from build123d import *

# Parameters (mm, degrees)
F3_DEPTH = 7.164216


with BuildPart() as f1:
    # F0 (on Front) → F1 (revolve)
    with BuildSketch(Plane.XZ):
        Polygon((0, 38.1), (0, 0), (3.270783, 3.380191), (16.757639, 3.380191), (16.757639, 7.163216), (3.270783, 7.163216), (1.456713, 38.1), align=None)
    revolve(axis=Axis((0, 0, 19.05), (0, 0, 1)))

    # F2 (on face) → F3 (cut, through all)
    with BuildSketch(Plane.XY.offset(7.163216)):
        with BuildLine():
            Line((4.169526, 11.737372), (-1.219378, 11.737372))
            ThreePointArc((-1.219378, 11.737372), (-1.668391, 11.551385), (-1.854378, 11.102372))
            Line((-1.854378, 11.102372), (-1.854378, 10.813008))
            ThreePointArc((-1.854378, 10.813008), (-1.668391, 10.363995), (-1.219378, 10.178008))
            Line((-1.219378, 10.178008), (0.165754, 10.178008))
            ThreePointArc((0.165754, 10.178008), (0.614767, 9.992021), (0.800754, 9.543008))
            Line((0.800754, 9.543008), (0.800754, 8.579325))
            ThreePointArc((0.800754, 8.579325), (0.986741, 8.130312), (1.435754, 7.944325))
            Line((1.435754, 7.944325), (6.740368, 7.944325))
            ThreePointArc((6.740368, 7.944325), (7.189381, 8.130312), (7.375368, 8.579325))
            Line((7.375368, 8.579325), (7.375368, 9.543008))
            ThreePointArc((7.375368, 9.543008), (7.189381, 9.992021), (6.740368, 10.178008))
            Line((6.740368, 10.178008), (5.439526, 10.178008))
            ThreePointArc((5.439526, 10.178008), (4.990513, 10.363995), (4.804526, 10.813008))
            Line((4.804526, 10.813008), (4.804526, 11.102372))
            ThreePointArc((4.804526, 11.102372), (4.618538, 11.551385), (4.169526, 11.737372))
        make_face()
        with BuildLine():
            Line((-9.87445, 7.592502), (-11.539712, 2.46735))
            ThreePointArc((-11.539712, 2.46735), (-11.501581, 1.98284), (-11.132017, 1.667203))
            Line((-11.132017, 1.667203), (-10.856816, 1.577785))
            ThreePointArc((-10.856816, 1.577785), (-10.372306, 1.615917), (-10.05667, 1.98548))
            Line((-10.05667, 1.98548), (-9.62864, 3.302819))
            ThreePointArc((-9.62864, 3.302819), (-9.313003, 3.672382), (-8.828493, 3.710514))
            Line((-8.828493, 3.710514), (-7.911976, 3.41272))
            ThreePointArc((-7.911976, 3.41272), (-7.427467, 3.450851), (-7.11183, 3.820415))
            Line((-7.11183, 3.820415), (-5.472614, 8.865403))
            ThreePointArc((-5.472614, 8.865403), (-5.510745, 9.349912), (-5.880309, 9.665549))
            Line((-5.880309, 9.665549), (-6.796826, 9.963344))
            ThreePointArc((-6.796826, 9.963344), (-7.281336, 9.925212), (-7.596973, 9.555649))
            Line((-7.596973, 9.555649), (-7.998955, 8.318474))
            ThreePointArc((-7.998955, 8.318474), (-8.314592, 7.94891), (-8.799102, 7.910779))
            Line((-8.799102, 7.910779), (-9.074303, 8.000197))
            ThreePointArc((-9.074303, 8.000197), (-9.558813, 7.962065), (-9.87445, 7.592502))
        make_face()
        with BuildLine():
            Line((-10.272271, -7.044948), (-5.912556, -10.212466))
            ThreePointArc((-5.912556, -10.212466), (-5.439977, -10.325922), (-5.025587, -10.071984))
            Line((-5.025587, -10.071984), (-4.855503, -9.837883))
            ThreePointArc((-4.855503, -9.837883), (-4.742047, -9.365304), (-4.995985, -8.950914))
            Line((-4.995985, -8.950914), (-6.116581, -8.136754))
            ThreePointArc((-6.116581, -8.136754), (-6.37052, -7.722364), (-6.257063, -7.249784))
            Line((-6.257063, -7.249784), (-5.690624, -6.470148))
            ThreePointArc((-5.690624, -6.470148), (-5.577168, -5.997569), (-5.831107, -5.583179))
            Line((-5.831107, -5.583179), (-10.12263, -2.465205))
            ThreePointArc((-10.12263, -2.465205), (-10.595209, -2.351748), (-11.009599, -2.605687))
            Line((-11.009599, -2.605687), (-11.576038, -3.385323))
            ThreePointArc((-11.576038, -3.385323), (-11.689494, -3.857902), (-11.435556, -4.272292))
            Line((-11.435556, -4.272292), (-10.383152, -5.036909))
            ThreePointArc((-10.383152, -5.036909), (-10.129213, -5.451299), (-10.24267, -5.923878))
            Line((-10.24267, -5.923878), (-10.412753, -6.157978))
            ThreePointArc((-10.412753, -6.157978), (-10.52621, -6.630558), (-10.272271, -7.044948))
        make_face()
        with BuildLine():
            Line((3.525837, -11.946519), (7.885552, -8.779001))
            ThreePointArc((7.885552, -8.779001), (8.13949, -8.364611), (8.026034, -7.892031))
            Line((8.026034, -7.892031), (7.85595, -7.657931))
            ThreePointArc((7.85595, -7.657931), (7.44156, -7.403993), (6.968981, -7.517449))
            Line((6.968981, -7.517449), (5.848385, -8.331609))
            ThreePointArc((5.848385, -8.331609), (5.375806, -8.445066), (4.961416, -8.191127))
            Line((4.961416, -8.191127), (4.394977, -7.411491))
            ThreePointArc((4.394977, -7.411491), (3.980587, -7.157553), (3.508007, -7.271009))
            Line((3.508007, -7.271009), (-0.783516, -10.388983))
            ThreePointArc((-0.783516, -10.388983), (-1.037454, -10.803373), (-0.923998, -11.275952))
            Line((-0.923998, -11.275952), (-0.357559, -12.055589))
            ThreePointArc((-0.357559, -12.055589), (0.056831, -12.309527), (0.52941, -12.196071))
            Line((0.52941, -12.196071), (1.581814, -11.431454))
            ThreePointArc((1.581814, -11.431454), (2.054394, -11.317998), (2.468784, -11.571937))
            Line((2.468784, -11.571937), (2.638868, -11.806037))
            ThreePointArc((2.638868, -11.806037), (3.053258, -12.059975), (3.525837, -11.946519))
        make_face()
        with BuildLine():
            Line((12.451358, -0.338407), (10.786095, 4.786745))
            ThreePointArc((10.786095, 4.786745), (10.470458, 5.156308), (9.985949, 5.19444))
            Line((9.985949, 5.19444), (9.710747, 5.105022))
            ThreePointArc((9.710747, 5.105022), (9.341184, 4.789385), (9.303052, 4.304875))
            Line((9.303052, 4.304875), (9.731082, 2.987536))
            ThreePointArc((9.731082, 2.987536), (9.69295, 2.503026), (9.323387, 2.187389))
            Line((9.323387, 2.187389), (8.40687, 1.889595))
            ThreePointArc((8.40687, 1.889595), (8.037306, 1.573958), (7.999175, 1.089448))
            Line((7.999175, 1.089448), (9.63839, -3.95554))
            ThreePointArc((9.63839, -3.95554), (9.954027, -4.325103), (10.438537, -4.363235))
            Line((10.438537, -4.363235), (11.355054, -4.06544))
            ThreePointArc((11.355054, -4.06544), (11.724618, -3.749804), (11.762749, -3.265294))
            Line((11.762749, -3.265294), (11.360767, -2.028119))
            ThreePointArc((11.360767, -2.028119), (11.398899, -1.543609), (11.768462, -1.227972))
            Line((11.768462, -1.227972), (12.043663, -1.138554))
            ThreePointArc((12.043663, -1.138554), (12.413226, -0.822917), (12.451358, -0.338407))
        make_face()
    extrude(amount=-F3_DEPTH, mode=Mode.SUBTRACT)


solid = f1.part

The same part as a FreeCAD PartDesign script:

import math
import FreeCAD as App
import Part
import Sketcher
Q = App.Units.Quantity


def add_polygon(sketch, points):
    """Adds a closed chain of lines whose ends are joined by coincident constraints."""
    first, n = sketch.GeometryCount, len(points)
    for a, b in zip(points, points[1:] + points[:1]):
        sketch.addGeometry(Part.LineSegment(App.Vector(*a, 0), App.Vector(*b, 0)), False)
    for i in range(n):
        sketch.addConstraint(Sketcher.Constraint("Coincident", first + i, 2, first + (i + 1) % n, 1))

doc = App.newDocument("Part")
body = doc.addObject("PartDesign::Body", "Body")

sketch1 = body.newObject("Sketcher::SketchObject", "Sketch")
sketch1.AttachmentSupport = (doc.getObject("XZ_Plane"), [""])
sketch1.MapMode = "FlatFace"
add_polygon(sketch1, [(0, 38.1), (0, 0), (3.270783, 3.380191), (16.757639, 3.380191), (16.757639, 7.163216), (3.270783, 7.163216), (1.456713, 38.1)])
sketch1.addConstraint(Sketcher.Constraint("Vertical", 0))
sketch1.addConstraint(Sketcher.Constraint("Horizontal", 2))
sketch1.addConstraint(Sketcher.Constraint("Vertical", 3))
sketch1.addConstraint(Sketcher.Constraint("Horizontal", 4))
sketch1.addConstraint(Sketcher.Constraint("Horizontal", 6))
sketch1.addConstraint(Sketcher.Constraint("Coincident", 0, 2, -1, 1))
sketch1.addConstraint(Sketcher.Constraint("Vertical", 1, 2, 4, 2))
sketch1.addConstraint(Sketcher.Constraint("DistanceY", 0, 2, 0, 1, Q("1.5 in")))
sketch1.addConstraint(Sketcher.Constraint("DistanceX", 2, 1, 2, 2, Q("13.486856 mm")))
sketch1.addConstraint(Sketcher.Constraint("DistanceX", 6, 2, 6, 1, Q("1.456713 mm")))
sketch1.addConstraint(Sketcher.Constraint("DistanceY", 3, 1, 3, 2, Q("3.783025 mm")))
sketch1.addConstraint(Sketcher.Constraint("DistanceY", -1, 1, 1, 2, Q("3.380191 mm")))
sketch1.addConstraint(Sketcher.Constraint("DistanceX", -1, 1, 2, 2, Q("16.757639 mm")))
revolution = body.newObject("PartDesign::Revolution", "Revolution")
revolution.Profile = sketch1
revolution.ReferenceAxis = (sketch1, ["V_Axis"])
revolution.Angle = 360

sketch2 = body.newObject("Sketcher::SketchObject", "Sketch001")
sketch2.AttachmentSupport = (doc.getObject("XY_Plane"), [""])
sketch2.MapMode = "FlatFace"
sketch2.AttachmentOffset = App.Placement(App.Vector(0, 0, 7.163216), App.Rotation())
sketch2.addGeometry(Part.LineSegment(App.Vector(4.169526, 11.737372, 0), App.Vector(-1.219378, 11.737372, 0)), False)
sketch2.addGeometry(Part.ArcOfCircle(Part.Circle(App.Vector(-1.219379, 11.102373, 0), App.Vector(0, 0, 1), 0.634999), math.radians(89.99994), math.radians(180.00006)), False)
sketch2.addGeometry(Part.LineSegment(App.Vector(-1.854378, 11.102372, 0), App.Vector(-1.854378, 10.813008, 0)), False)
sketch2.addGeometry(Part.ArcOfCircle(Part.Circle(App.Vector(-1.219379, 10.813007, 0), App.Vector(0, 0, 1), 0.634999), math.radians(179.99994), math.radians(270.00006)), False)
sketch2.addGeometry(Part.LineSegment(App.Vector(-1.219378, 10.178008, 0), App.Vector(0.165754, 10.178008, 0)), False)
sketch2.addGeometry(Part.ArcOfCircle(Part.Circle(App.Vector(0.165755, 9.543009, 0), App.Vector(0, 0, 1), 0.634999), math.radians(-0.00006), math.radians(90.00006)), False)
sketch2.addGeometry(Part.LineSegment(App.Vector(0.800754, 9.543008, 0), App.Vector(0.800754, 8.579325, 0)), False)
sketch2.addGeometry(Part.ArcOfCircle(Part.Circle(App.Vector(1.435753, 8.579324, 0), App.Vector(0, 0, 1), 0.634999), math.radians(179.99994), math.radians(270.00006)), False)
sketch2.addGeometry(Part.LineSegment(App.Vector(1.435754, 7.944325, 0), App.Vector(6.740368, 7.944325, 0)), False)
sketch2.addGeometry(Part.ArcOfCircle(Part.Circle(App.Vector(6.740369, 8.579324, 0), App.Vector(0, 0, 1), 0.634999), math.radians(-90.00006), math.radians(0.00006)), False)
sketch2.addGeometry(Part.LineSegment(App.Vector(7.375368, 8.579325, 0), App.Vector(7.375368, 9.543008, 0)), False)
sketch2.addGeometry(Part.ArcOfCircle(Part.Circle(App.Vector(6.740369, 9.543009, 0), App.Vector(0, 0, 1), 0.634999), math.radians(-0.00006), math.radians(90.00006)), False)
sketch2.addGeometry(Part.LineSegment(App.Vector(6.740368, 10.178008, 0), App.Vector(5.439526, 10.178008, 0)), False)
sketch2.addGeometry(Part.ArcOfCircle(Part.Circle(App.Vector(5.439525, 10.813007, 0), App.Vector(0, 0, 1), 0.634999), math.radians(179.99994), math.radians(270.00006)), False)
sketch2.addGeometry(Part.LineSegment(App.Vector(4.804526, 10.813008, 0), App.Vector(4.804526, 11.102372, 0)), False)
sketch2.addGeometry(Part.ArcOfCircle(Part.Circle(App.Vector(4.169525, 11.102371, 0), App.Vector(0, 0, 1), 0.635001), math.radians(0.000094), math.radians(89.999906)), False)
sketch2.addGeometry(Part.LineSegment(App.Vector(-9.87445, 7.592502, 0), App.Vector(-11.539712, 2.46735, 0)), False)
sketch2.addGeometry(Part.ArcOfCircle(Part.Circle(App.Vector(-10.935793, 2.271123, 0), App.Vector(0, 0, 1), 0.634999), math.radians(161.999853), math.radians(252.000118)), False)
sketch2.addGeometry(Part.LineSegment(App.Vector(-11.132017, 1.667203, 0), App.Vector(-10.856816, 1.577785, 0)), False)
sketch2.addGeometry(Part.ArcOfCircle(Part.Circle(App.Vector(-10.66059, 2.181705, 0), App.Vector(0, 0, 1), 0.634999), math.radians(-108.000014), math.radians(-17.999958)), False)
sketch2.addGeometry(Part.LineSegment(App.Vector(-10.05667, 1.98548, 0), App.Vector(-9.62864, 3.302819, 0)), False)
sketch2.addGeometry(Part.ArcOfCircle(Part.Circle(App.Vector(-9.024719, 3.106592, 0), App.Vector(0, 0, 1), 0.635001), math.radians(72.000047), math.radians(161.999923)), False)
sketch2.addGeometry(Part.LineSegment(App.Vector(-8.828493, 3.710514, 0), App.Vector(-7.911976, 3.41272, 0)), False)
sketch2.addGeometry(Part.ArcOfCircle(Part.Circle(App.Vector(-7.71575, 4.016639, 0), App.Vector(0, 0, 1), 0.634998), math.radians(-108.000109), math.radians(-17.999863)), False)
sketch2.addGeometry(Part.LineSegment(App.Vector(-7.11183, 3.820415, 0), App.Vector(-5.472614, 8.865403, 0)), False)
sketch2.addGeometry(Part.ArcOfCircle(Part.Circle(App.Vector(-6.076533, 9.061629, 0), App.Vector(0, 0, 1), 0.634998), math.radians(-18.000109), math.radians(72.000137)), False)
sketch2.addGeometry(Part.LineSegment(App.Vector(-5.880309, 9.665549, 0), App.Vector(-6.796826, 9.963344, 0)), False)
sketch2.addGeometry(Part.ArcOfCircle(Part.Circle(App.Vector(-6.993052, 9.359422, 0), App.Vector(0, 0, 1), 0.635001), math.radians(72.000047), math.radians(161.999923)), False)
sketch2.addGeometry(Part.LineSegment(App.Vector(-7.596973, 9.555649, 0), App.Vector(-7.998955, 8.318474, 0)), False)
sketch2.addGeometry(Part.ArcOfCircle(Part.Circle(App.Vector(-8.602875, 8.514698, 0), App.Vector(0, 0, 1), 0.634999), math.radians(-108.000147), math.radians(-17.999882)), False)
sketch2.addGeometry(Part.LineSegment(App.Vector(-8.799102, 7.910779, 0), App.Vector(-9.074303, 8.000197, 0)), False)
sketch2.addGeometry(Part.ArcOfCircle(Part.Circle(App.Vector(-9.270529, 7.396275, 0), App.Vector(0, 0, 1), 0.635001), math.radians(72.000047), math.radians(161.999923)), False)
sketch2.addGeometry(Part.LineSegment(App.Vector(-10.272271, -7.044948, 0), App.Vector(-5.912556, -10.212466, 0)), False)
sketch2.addGeometry(Part.ArcOfCircle(Part.Circle(App.Vector(-5.539313, -9.698739, 0), App.Vector(0, 0, 1), 0.635), math.radians(-125.999933), math.radians(-36.000078)), False)
sketch2.addGeometry(Part.LineSegment(App.Vector(-5.025587, -10.071984, 0), App.Vector(-4.855503, -9.837883, 0)), False)
sketch2.addGeometry(Part.ArcOfCircle(Part.Circle(App.Vector(-5.36923, -9.46464, 0), App.Vector(0, 0, 1), 0.635), math.radians(-35.999933), math.radians(53.999922)), False)
sketch2.addGeometry(Part.LineSegment(App.Vector(-4.995985, -8.950914, 0), App.Vector(-6.116581, -8.136754, 0)), False)
sketch2.addGeometry(Part.ArcOfCircle(Part.Circle(App.Vector(-5.743339, -7.623028, 0), App.Vector(0, 0, 1), 0.634999), math.radians(143.99987), math.radians(234.000099)), False)
sketch2.addGeometry(Part.LineSegment(App.Vector(-6.257063, -7.249784, 0), App.Vector(-5.690624, -6.470148, 0)), False)
sketch2.addGeometry(Part.ArcOfCircle(Part.Circle(App.Vector(-6.20435, -6.096905, 0), App.Vector(0, 0, 1), 0.634999), math.radians(-35.99997), math.radians(54.000085)), False)
sketch2.addGeometry(Part.LineSegment(App.Vector(-5.831107, -5.583179, 0), App.Vector(-10.12263, -2.465205, 0)), False)
sketch2.addGeometry(Part.ArcOfCircle(Part.Circle(App.Vector(-10.495874, -2.978928, 0), App.Vector(0, 0, 1), 0.634998), math.radians(53.999852), math.radians(144.000137)), False)
sketch2.addGeometry(Part.LineSegment(App.Vector(-11.009599, -2.605687, 0), App.Vector(-11.576038, -3.385323, 0)), False)
sketch2.addGeometry(Part.ArcOfCircle(Part.Circle(App.Vector(-11.062311, -3.758566, 0), App.Vector(0, 0, 1), 0.635), math.radians(144.000067), math.radians(233.999922)), False)
sketch2.addGeometry(Part.LineSegment(App.Vector(-11.435556, -4.272292, 0), App.Vector(-10.383152, -5.036909, 0)), False)
sketch2.addGeometry(Part.ArcOfCircle(Part.Circle(App.Vector(-10.756393, -5.550634, 0), App.Vector(0, 0, 1), 0.634998), math.radians(-36.000148), math.radians(54.000137)), False)
sketch2.addGeometry(Part.LineSegment(App.Vector(-10.24267, -5.923878, 0), App.Vector(-10.412753, -6.157978, 0)), False)
sketch2.addGeometry(Part.ArcOfCircle(Part.Circle(App.Vector(-9.899029, -6.531222, 0), App.Vector(0, 0, 1), 0.634999), math.radians(143.99987), math.radians(234.000099)), False)
sketch2.addGeometry(Part.LineSegment(App.Vector(3.525837, -11.946519, 0), App.Vector(7.885552, -8.779001, 0)), False)
sketch2.addGeometry(Part.ArcOfCircle(Part.Circle(App.Vector(7.512306, -8.265275, 0), App.Vector(0, 0, 1), 0.635001), math.radians(-53.999884), math.radians(35.999915)), False)
sketch2.addGeometry(Part.LineSegment(App.Vector(8.026034, -7.892031, 0), App.Vector(7.85595, -7.657931, 0)), False)
sketch2.addGeometry(Part.ArcOfCircle(Part.Circle(App.Vector(7.342224, -8.031176, 0), App.Vector(0, 0, 1), 0.635), math.radians(36.000078), math.radians(125.999933)), False)
sketch2.addGeometry(Part.LineSegment(App.Vector(6.968981, -7.517449, 0), App.Vector(5.848385, -8.331609, 0)), False)
sketch2.addGeometry(Part.ArcOfCircle(Part.Circle(App.Vector(5.475141, -7.817886, 0), App.Vector(0, 0, 1), 0.634998), math.radians(-144.000137), math.radians(-53.999852)), False)
sketch2.addGeometry(Part.LineSegment(App.Vector(4.961416, -8.191127, 0), App.Vector(4.394977, -7.411491, 0)), False)
sketch2.addGeometry(Part.ArcOfCircle(Part.Circle(App.Vector(3.881251, -7.784737, 0), App.Vector(0, 0, 1), 0.635001), math.radians(36.000116), math.radians(125.999915)), False)
sketch2.addGeometry(Part.LineSegment(App.Vector(3.508007, -7.271009, 0), App.Vector(-0.783516, -10.388983, 0)), False)
sketch2.addGeometry(Part.ArcOfCircle(Part.Circle(App.Vector(-0.410271, -10.902709, 0), App.Vector(0, 0, 1), 0.635), math.radians(126.000078), math.radians(215.999933)), False)
sketch2.addGeometry(Part.LineSegment(App.Vector(-0.923998, -11.275952, 0), App.Vector(-0.357559, -12.055589, 0)), False)
sketch2.addGeometry(Part.ArcOfCircle(Part.Circle(App.Vector(0.156167, -11.682344, 0), App.Vector(0, 0, 1), 0.635), math.radians(-143.999922), math.radians(-54.000067)), False)
sketch2.addGeometry(Part.LineSegment(App.Vector(0.52941, -12.196071, 0), App.Vector(1.581814, -11.431454, 0)), False)
sketch2.addGeometry(Part.ArcOfCircle(Part.Circle(App.Vector(1.955058, -11.94518, 0), App.Vector(0, 0, 1), 0.635), math.radians(35.999952), math.radians(125.999953)), False)
sketch2.addGeometry(Part.LineSegment(App.Vector(2.468784, -11.571937, 0), App.Vector(2.638868, -11.806037, 0)), False)
sketch2.addGeometry(Part.ArcOfCircle(Part.Circle(App.Vector(3.152594, -11.432792, 0), App.Vector(0, 0, 1), 0.635), math.radians(-143.999922), math.radians(-54.000067)), False)
sketch2.addGeometry(Part.LineSegment(App.Vector(12.451358, -0.338407, 0), App.Vector(10.786095, 4.786745, 0)), False)
sketch2.addGeometry(Part.ArcOfCircle(Part.Circle(App.Vector(10.182174, 4.590519, 0), App.Vector(0, 0, 1), 0.635), math.radians(18.000057), math.radians(107.999915)), False)
sketch2.addGeometry(Part.LineSegment(App.Vector(9.985949, 5.19444, 0), App.Vector(9.710747, 5.105022, 0)), False)
sketch2.addGeometry(Part.ArcOfCircle(Part.Circle(App.Vector(9.906974, 4.501101, 0), App.Vector(0, 0, 1), 0.635001), math.radians(108.000077), math.radians(197.999953)), False)
sketch2.addGeometry(Part.LineSegment(App.Vector(9.303052, 4.304875, 0), App.Vector(9.731082, 2.987536, 0)), False)
sketch2.addGeometry(Part.ArcOfCircle(Part.Circle(App.Vector(9.12716, 2.79131, 0), App.Vector(0, 0, 1), 0.635001), math.radians(-71.999923), math.radians(17.999953)), False)
sketch2.addGeometry(Part.LineSegment(App.Vector(9.323387, 2.187389, 0), App.Vector(8.40687, 1.889595, 0)), False)
sketch2.addGeometry(Part.ArcOfCircle(Part.Circle(App.Vector(8.603094, 1.285675, 0), App.Vector(0, 0, 1), 0.634999), math.radians(107.999882), math.radians(198.000147)), False)
sketch2.addGeometry(Part.LineSegment(App.Vector(7.999175, 1.089448, 0), App.Vector(9.63839, -3.95554, 0)), False)
sketch2.addGeometry(Part.ArcOfCircle(Part.Circle(App.Vector(10.242311, -3.759313, 0), App.Vector(0, 0, 1), 0.635001), math.radians(-161.999923), math.radians(-72.000047)), False)
sketch2.addGeometry(Part.LineSegment(App.Vector(10.438537, -4.363235, 0), App.Vector(11.355054, -4.06544, 0)), False)
sketch2.addGeometry(Part.ArcOfCircle(Part.Circle(App.Vector(11.158832, -3.461521, 0), App.Vector(0, 0, 1), 0.634997), math.radians(-72.000236), math.radians(18.000208)), False)
sketch2.addGeometry(Part.LineSegment(App.Vector(11.762749, -3.265294, 0), App.Vector(11.360767, -2.028119, 0)), False)
sketch2.addGeometry(Part.ArcOfCircle(Part.Circle(App.Vector(11.964689, -1.831893, 0), App.Vector(0, 0, 1), 0.635001), math.radians(108.000077), math.radians(197.999953)), False)
sketch2.addGeometry(Part.LineSegment(App.Vector(11.768462, -1.227972, 0), App.Vector(12.043663, -1.138554, 0)), False)
sketch2.addGeometry(Part.ArcOfCircle(Part.Circle(App.Vector(11.847436, -0.534633, 0), App.Vector(0, 0, 1), 0.635001), math.radians(-71.999923), math.radians(17.999953)), False)
sketch2.addConstraint(Sketcher.Constraint("Tangent", 0, 2, 1, 1))
sketch2.addConstraint(Sketcher.Constraint("Tangent", 1, 2, 2, 1))
sketch2.addConstraint(Sketcher.Constraint("Tangent", 2, 2, 3, 1))
sketch2.addConstraint(Sketcher.Constraint("Tangent", 3, 2, 4, 1))
sketch2.addConstraint(Sketcher.Constraint("Tangent", 4, 2, 5, 2))
sketch2.addConstraint(Sketcher.Constraint("Tangent", 5, 1, 6, 1))
sketch2.addConstraint(Sketcher.Constraint("Tangent", 6, 2, 7, 1))
sketch2.addConstraint(Sketcher.Constraint("Tangent", 7, 2, 8, 1))
sketch2.addConstraint(Sketcher.Constraint("Tangent", 8, 2, 9, 1))
sketch2.addConstraint(Sketcher.Constraint("Tangent", 9, 2, 10, 1))
sketch2.addConstraint(Sketcher.Constraint("Tangent", 10, 2, 11, 1))
sketch2.addConstraint(Sketcher.Constraint("Tangent", 11, 2, 12, 1))
sketch2.addConstraint(Sketcher.Constraint("Tangent", 12, 2, 13, 2))
sketch2.addConstraint(Sketcher.Constraint("Tangent", 13, 1, 14, 1))
sketch2.addConstraint(Sketcher.Constraint("Tangent", 14, 2, 15, 1))
sketch2.addConstraint(Sketcher.Constraint("Tangent", 15, 2, 0, 1))
sketch2.addConstraint(Sketcher.Constraint("Coincident", 16, 2, 17, 1))
sketch2.addConstraint(Sketcher.Constraint("Tangent", 17, 2, 18, 1))
sketch2.addConstraint(Sketcher.Constraint("Tangent", 18, 2, 19, 1))
sketch2.addConstraint(Sketcher.Constraint("Tangent", 19, 2, 20, 1))
sketch2.addConstraint(Sketcher.Constraint("Tangent", 20, 2, 21, 2))
sketch2.addConstraint(Sketcher.Constraint("Tangent", 21, 1, 22, 1))
sketch2.addConstraint(Sketcher.Constraint("Coincident", 22, 2, 23, 1))
sketch2.addConstraint(Sketcher.Constraint("Coincident", 23, 2, 24, 1))
sketch2.addConstraint(Sketcher.Constraint("Tangent", 24, 2, 25, 1))
sketch2.addConstraint(Sketcher.Constraint("Coincident", 25, 2, 26, 1))
sketch2.addConstraint(Sketcher.Constraint("Tangent", 26, 2, 27, 1))
sketch2.addConstraint(Sketcher.Constraint("Tangent", 27, 2, 28, 1))
sketch2.addConstraint(Sketcher.Constraint("Tangent", 28, 2, 29, 2))
sketch2.addConstraint(Sketcher.Constraint("Coincident", 29, 1, 30, 1))
sketch2.addConstraint(Sketcher.Constraint("Tangent", 30, 2, 31, 1))
sketch2.addConstraint(Sketcher.Constraint("Tangent", 31, 2, 16, 1))
sketch2.addConstraint(Sketcher.Constraint("Tangent", 32, 2, 33, 1))
sketch2.addConstraint(Sketcher.Constraint("Coincident", 33, 2, 34, 1))
sketch2.addConstraint(Sketcher.Constraint("Tangent", 34, 2, 35, 1))
sketch2.addConstraint(Sketcher.Constraint("Tangent", 35, 2, 36, 1))
sketch2.addConstraint(Sketcher.Constraint("Tangent", 36, 2, 37, 2))
sketch2.addConstraint(Sketcher.Constraint("Coincident", 37, 1, 38, 1))
sketch2.addConstraint(Sketcher.Constraint("Tangent", 38, 2, 39, 1))
sketch2.addConstraint(Sketcher.Constraint("Tangent", 39, 2, 40, 1))
sketch2.addConstraint(Sketcher.Constraint("Coincident", 40, 2, 41, 1))
sketch2.addConstraint(Sketcher.Constraint("Coincident", 41, 2, 42, 1))
sketch2.addConstraint(Sketcher.Constraint("Tangent", 42, 2, 43, 1))
sketch2.addConstraint(Sketcher.Constraint("Tangent", 43, 2, 44, 1))
sketch2.addConstraint(Sketcher.Constraint("Coincident", 44, 2, 45, 2))
sketch2.addConstraint(Sketcher.Constraint("Coincident", 45, 1, 46, 1))
sketch2.addConstraint(Sketcher.Constraint("Coincident", 46, 2, 47, 1))
sketch2.addConstraint(Sketcher.Constraint("Tangent", 47, 2, 32, 1))
sketch2.addConstraint(Sketcher.Constraint("Coincident", 48, 2, 49, 1))
sketch2.addConstraint(Sketcher.Constraint("Coincident", 49, 2, 50, 1))
sketch2.addConstraint(Sketcher.Constraint("Tangent", 50, 2, 51, 1))
sketch2.addConstraint(Sketcher.Constraint("Tangent", 51, 2, 52, 1))
sketch2.addConstraint(Sketcher.Constraint("Coincident", 52, 2, 53, 2))
sketch2.addConstraint(Sketcher.Constraint("Coincident", 53, 1, 54, 1))
sketch2.addConstraint(Sketcher.Constraint("Tangent", 54, 2, 55, 1))
sketch2.addConstraint(Sketcher.Constraint("Tangent", 55, 2, 56, 1))
sketch2.addConstraint(Sketcher.Constraint("Tangent", 56, 2, 57, 1))
sketch2.addConstraint(Sketcher.Constraint("Tangent", 57, 2, 58, 1))
sketch2.addConstraint(Sketcher.Constraint("Tangent", 58, 2, 59, 1))
sketch2.addConstraint(Sketcher.Constraint("Tangent", 59, 2, 60, 1))
sketch2.addConstraint(Sketcher.Constraint("Tangent", 60, 2, 61, 2))
sketch2.addConstraint(Sketcher.Constraint("Tangent", 61, 1, 62, 1))
sketch2.addConstraint(Sketcher.Constraint("Tangent", 62, 2, 63, 1))
sketch2.addConstraint(Sketcher.Constraint("Tangent", 63, 2, 48, 1))
sketch2.addConstraint(Sketcher.Constraint("Tangent", 64, 2, 65, 1))
sketch2.addConstraint(Sketcher.Constraint("Tangent", 65, 2, 66, 1))
sketch2.addConstraint(Sketcher.Constraint("Coincident", 66, 2, 67, 1))
sketch2.addConstraint(Sketcher.Constraint("Tangent", 67, 2, 68, 1))
sketch2.addConstraint(Sketcher.Constraint("Tangent", 68, 2, 69, 2))
sketch2.addConstraint(Sketcher.Constraint("Tangent", 69, 1, 70, 1))
sketch2.addConstraint(Sketcher.Constraint("Tangent", 70, 2, 71, 1))
sketch2.addConstraint(Sketcher.Constraint("Coincident", 71, 2, 72, 1))
sketch2.addConstraint(Sketcher.Constraint("Tangent", 72, 2, 73, 1))
sketch2.addConstraint(Sketcher.Constraint("Tangent", 73, 2, 74, 1))
sketch2.addConstraint(Sketcher.Constraint("Coincident", 74, 2, 75, 1))
sketch2.addConstraint(Sketcher.Constraint("Coincident", 75, 2, 76, 1))
sketch2.addConstraint(Sketcher.Constraint("Tangent", 76, 2, 77, 2))
sketch2.addConstraint(Sketcher.Constraint("Coincident", 77, 1, 78, 1))
sketch2.addConstraint(Sketcher.Constraint("Coincident", 78, 2, 79, 1))
sketch2.addConstraint(Sketcher.Constraint("Tangent", 79, 2, 64, 1))
sketch2.addConstraint(Sketcher.Constraint("Horizontal", 0))
sketch2.addConstraint(Sketcher.Constraint("Vertical", 2))
sketch2.addConstraint(Sketcher.Constraint("Horizontal", 4))
sketch2.addConstraint(Sketcher.Constraint("Vertical", 6))
sketch2.addConstraint(Sketcher.Constraint("Horizontal", 8))
sketch2.addConstraint(Sketcher.Constraint("Vertical", 10))
sketch2.addConstraint(Sketcher.Constraint("Horizontal", 12))
sketch2.addConstraint(Sketcher.Constraint("Vertical", 14))
sketch2.addConstraint(Sketcher.Constraint("Equal", 1, 3))
sketch2.addConstraint(Sketcher.Constraint("Equal", 3, 5))
sketch2.addConstraint(Sketcher.Constraint("Equal", 5, 7))
sketch2.addConstraint(Sketcher.Constraint("Equal", 7, 9))
sketch2.addConstraint(Sketcher.Constraint("Equal", 9, 11))
sketch2.addConstraint(Sketcher.Constraint("Equal", 11, 13))
sketch2.addConstraint(Sketcher.Constraint("Equal", 13, 15))
sketch2.addConstraint(Sketcher.Constraint("Equal", 13, 17))
sketch2.addConstraint(Sketcher.Constraint("Equal", 17, 19))
sketch2.addConstraint(Sketcher.Constraint("Equal", 19, 21))
sketch2.addConstraint(Sketcher.Constraint("Equal", 19, 23))
sketch2.addConstraint(Sketcher.Constraint("Equal", 23, 25))
sketch2.addConstraint(Sketcher.Constraint("Equal", 21, 27))
sketch2.addConstraint(Sketcher.Constraint("Equal", 25, 29))
sketch2.addConstraint(Sketcher.Constraint("Equal", 27, 31))
sketch2.addConstraint(Sketcher.Constraint("Equal", 31, 33))
sketch2.addConstraint(Sketcher.Constraint("Equal", 33, 35))
sketch2.addConstraint(Sketcher.Constraint("Equal", 35, 37))
sketch2.addConstraint(Sketcher.Constraint("Equal", 37, 39))
sketch2.addConstraint(Sketcher.Constraint("Equal", 39, 41))
sketch2.addConstraint(Sketcher.Constraint("Equal", 39, 43))
sketch2.addConstraint(Sketcher.Constraint("Equal", 41, 45))
sketch2.addConstraint(Sketcher.Constraint("Equal", 45, 47))
sketch2.addConstraint(Sketcher.Constraint("Equal", 43, 49))
sketch2.addConstraint(Sketcher.Constraint("Equal", 49, 51))
sketch2.addConstraint(Sketcher.Constraint("Equal", 47, 53))
sketch2.addConstraint(Sketcher.Constraint("Equal", 51, 55))
sketch2.addConstraint(Sketcher.Constraint("Equal", 55, 57))
sketch2.addConstraint(Sketcher.Constraint("Equal", 57, 59))
sketch2.addConstraint(Sketcher.Constraint("Equal", 59, 61))
sketch2.addConstraint(Sketcher.Constraint("Equal", 61, 63))
sketch2.addConstraint(Sketcher.Constraint("Equal", 63, 65))
sketch2.addConstraint(Sketcher.Constraint("Equal", 65, 67))
sketch2.addConstraint(Sketcher.Constraint("Equal", 67, 69))
sketch2.addConstraint(Sketcher.Constraint("Equal", 65, 71))
sketch2.addConstraint(Sketcher.Constraint("Equal", 69, 73))
sketch2.addConstraint(Sketcher.Constraint("Equal", 71, 75))
sketch2.addConstraint(Sketcher.Constraint("Equal", 73, 77))
sketch2.addConstraint(Sketcher.Constraint("Equal", 77, 79))
sketch2.addConstraint(Sketcher.Constraint("Perpendicular", 16, 18))
sketch2.addConstraint(Sketcher.Constraint("Perpendicular", 18, 20))
sketch2.addConstraint(Sketcher.Constraint("Perpendicular", 20, 22))
sketch2.addConstraint(Sketcher.Constraint("Perpendicular", 22, 24))
sketch2.addConstraint(Sketcher.Constraint("Perpendicular", 24, 26))
sketch2.addConstraint(Sketcher.Constraint("Perpendicular", 26, 28))
sketch2.addConstraint(Sketcher.Constraint("Perpendicular", 28, 30))
sketch2.addConstraint(Sketcher.Constraint("Perpendicular", 32, 34))
sketch2.addConstraint(Sketcher.Constraint("Perpendicular", 34, 36))
sketch2.addConstraint(Sketcher.Constraint("Perpendicular", 36, 38))
sketch2.addConstraint(Sketcher.Constraint("Perpendicular", 38, 40))
sketch2.addConstraint(Sketcher.Constraint("Perpendicular", 40, 42))
sketch2.addConstraint(Sketcher.Constraint("Perpendicular", 42, 44))
sketch2.addConstraint(Sketcher.Constraint("Parallel", 42, 46))
sketch2.addConstraint(Sketcher.Constraint("Perpendicular", 48, 50))
sketch2.addConstraint(Sketcher.Constraint("Perpendicular", 50, 52))
sketch2.addConstraint(Sketcher.Constraint("Perpendicular", 52, 54))
sketch2.addConstraint(Sketcher.Constraint("Perpendicular", 54, 56))
sketch2.addConstraint(Sketcher.Constraint("Perpendicular", 56, 58))
sketch2.addConstraint(Sketcher.Constraint("Perpendicular", 58, 60))
sketch2.addConstraint(Sketcher.Constraint("Perpendicular", 60, 62))
sketch2.addConstraint(Sketcher.Constraint("Perpendicular", 64, 66))
sketch2.addConstraint(Sketcher.Constraint("Parallel", 64, 68))
sketch2.addConstraint(Sketcher.Constraint("Perpendicular", 68, 70))
sketch2.addConstraint(Sketcher.Constraint("Perpendicular", 70, 72))
sketch2.addConstraint(Sketcher.Constraint("Perpendicular", 72, 74))
sketch2.addConstraint(Sketcher.Constraint("Perpendicular", 74, 76))
sketch2.addConstraint(Sketcher.Constraint("Perpendicular", 76, 78))
sketch2.addConstraint(Sketcher.Constraint("Horizontal", 5, 3, 11, 3))
sketch2.addConstraint(Sketcher.Constraint("Equal", 22, 26))
sketch2.addConstraint(Sketcher.Constraint("Equal", 18, 30))
sketch2.addConstraint(Sketcher.Constraint("Equal", 16, 32))
sketch2.addConstraint(Sketcher.Constraint("Equal", 30, 34))
sketch2.addConstraint(Sketcher.Constraint("Equal", 20, 36))
sketch2.addConstraint(Sketcher.Constraint("Equal", 26, 38))
sketch2.addConstraint(Sketcher.Constraint("Equal", 24, 40))
sketch2.addConstraint(Sketcher.Constraint("Equal", 38, 42))
sketch2.addConstraint(Sketcher.Constraint("Equal", 28, 44))
sketch2.addConstraint(Sketcher.Constraint("Equal", 34, 46))
sketch2.addConstraint(Sketcher.Constraint("Equal", 32, 48))
sketch2.addConstraint(Sketcher.Constraint("Equal", 46, 50))
sketch2.addConstraint(Sketcher.Constraint("Equal", 36, 52))
sketch2.addConstraint(Sketcher.Constraint("Equal", 42, 54))
sketch2.addConstraint(Sketcher.Constraint("Equal", 40, 56))
sketch2.addConstraint(Sketcher.Constraint("Equal", 54, 58))
sketch2.addConstraint(Sketcher.Constraint("Equal", 44, 60))
sketch2.addConstraint(Sketcher.Constraint("Equal", 50, 62))
sketch2.addConstraint(Sketcher.Constraint("Equal", 48, 64))
sketch2.addConstraint(Sketcher.Constraint("Equal", 62, 66))
sketch2.addConstraint(Sketcher.Constraint("Equal", 52, 68))
sketch2.addConstraint(Sketcher.Constraint("Equal", 58, 70))
sketch2.addConstraint(Sketcher.Constraint("Equal", 56, 72))
sketch2.addConstraint(Sketcher.Constraint("Equal", 70, 74))
sketch2.addConstraint(Sketcher.Constraint("Equal", 60, 76))
sketch2.addConstraint(Sketcher.Constraint("Equal", 66, 78))
sketch2.addConstraint(Sketcher.Constraint("Angle", 16, Q("-107.999992 deg")))
sketch2.addConstraint(Sketcher.Constraint("Angle", 32, Q("-35.999997 deg")))
sketch2.addConstraint(Sketcher.Constraint("Angle", 48, Q("35.999997 deg")))
sketch2.addConstraint(Sketcher.Constraint("Angle", 64, Q("108.000002 deg")))
sketch2.addConstraint(Sketcher.Constraint("Radius", 1, Q("0.025 in")))
sketch2.addConstraint(Sketcher.Constraint("DistanceY", -1, 1, 29, 3, Q("8.514698 mm")))
sketch2.addConstraint(Sketcher.Constraint("DistanceY", -1, 1, 67, 3, Q("4.501101 mm")))
sketch2.addConstraint(Sketcher.Constraint("DistanceY", -1, 1, 31, 2, Q("7.592502 mm")))
sketch2.addConstraint(Sketcher.Constraint("DistanceX", 41, 2, -1, 1, Q("11.009599 mm")))
sketch2.addConstraint(Sketcher.Constraint("DistanceY", 48, 2, -1, 1, Q("8.779001 mm")))
sketch2.addConstraint(Sketcher.Constraint("DistanceX", 0, 2, 0, 1, Q("5.388904 mm")))
sketch2.addConstraint(Sketcher.Constraint("DistanceX", 4, 1, 4, 2, Q("1.385132 mm")))
sketch2.addConstraint(Sketcher.Constraint("DistanceX", 8, 1, 8, 2, Q("5.304614 mm")))
sketch2.addConstraint(Sketcher.Constraint("DistanceY", 2, 2, 2, 1, Q("0.289364 mm")))
sketch2.addConstraint(Sketcher.Constraint("DistanceY", 6, 2, 6, 1, Q("0.963683 mm")))
sketch2.addConstraint(Sketcher.Constraint("DistanceX", 1, 3, -1, 1, Q("1.219379 mm")))
sketch2.addConstraint(Sketcher.Constraint("DistanceY", -1, 1, 5, 3, Q("9.543009 mm")))
sketch2.addConstraint(Sketcher.Constraint("DistanceX", 19, 3, -1, 1, Q("10.66059 mm")))
sketch2.addConstraint(Sketcher.Constraint("DistanceX", 21, 3, -1, 1, Q("9.024719 mm")))
sketch2.addConstraint(Sketcher.Constraint("DistanceX", 23, 3, -1, 1, Q("7.71575 mm")))
sketch2.addConstraint(Sketcher.Constraint("DistanceY", -1, 1, 23, 3, Q("4.016639 mm")))
sketch2.addConstraint(Sketcher.Constraint("DistanceY", -1, 1, 25, 3, Q("9.061629 mm")))
sketch2.addConstraint(Sketcher.Constraint("DistanceX", 27, 3, -1, 1, Q("6.993052 mm")))
sketch2.addConstraint(Sketcher.Constraint("DistanceY", 33, 3, -1, 1, Q("9.698739 mm")))
sketch2.addConstraint(Sketcher.Constraint("DistanceX", 35, 3, -1, 1, Q("5.36923 mm")))
sketch2.addConstraint(Sketcher.Constraint("DistanceY", 35, 3, -1, 1, Q("9.46464 mm")))
sketch2.addConstraint(Sketcher.Constraint("DistanceX", 39, 3, -1, 1, Q("6.20435 mm")))
sketch2.addConstraint(Sketcher.Constraint("DistanceY", 41, 3, -1, 1, Q("2.978928 mm")))
sketch2.addConstraint(Sketcher.Constraint("DistanceX", 43, 3, -1, 1, Q("11.062311 mm")))
sketch2.addConstraint(Sketcher.Constraint("DistanceX", 47, 3, -1, 1, Q("9.899029 mm")))
sketch2.addConstraint(Sketcher.Constraint("DistanceX", -1, 1, 53, 3, Q("5.475141 mm")))
sketch2.addConstraint(Sketcher.Constraint("DistanceX", -1, 1, 55, 3, Q("3.881251 mm")))
sketch2.addConstraint(Sketcher.Constraint("DistanceX", 57, 3, -1, 1, Q("0.410271 mm")))
sketch2.addConstraint(Sketcher.Constraint("DistanceY", -1, 1, 65, 3, Q("4.590519 mm")))
sketch2.addConstraint(Sketcher.Constraint("DistanceX", -1, 1, 69, 3, Q("9.12716 mm")))
sketch2.addConstraint(Sketcher.Constraint("DistanceX", -1, 1, 73, 3, Q("10.242311 mm")))
sketch2.addConstraint(Sketcher.Constraint("DistanceX", -1, 1, 75, 3, Q("11.158832 mm")))
sketch2.addConstraint(Sketcher.Constraint("DistanceX", 45, 1, -1, 1, Q("10.24267 mm")))
sketch2.addConstraint(Sketcher.Constraint("DistanceY", 49, 2, -1, 1, Q("7.892031 mm")))
sketch2.addConstraint(Sketcher.Constraint("DistanceX", -1, 1, 77, 1, Q("11.768462 mm")))
pocket1 = body.newObject("PartDesign::Pocket", "Pocket")
pocket1.Profile = sketch2
pocket1.Type = "ThroughAll"

doc.recompute()
